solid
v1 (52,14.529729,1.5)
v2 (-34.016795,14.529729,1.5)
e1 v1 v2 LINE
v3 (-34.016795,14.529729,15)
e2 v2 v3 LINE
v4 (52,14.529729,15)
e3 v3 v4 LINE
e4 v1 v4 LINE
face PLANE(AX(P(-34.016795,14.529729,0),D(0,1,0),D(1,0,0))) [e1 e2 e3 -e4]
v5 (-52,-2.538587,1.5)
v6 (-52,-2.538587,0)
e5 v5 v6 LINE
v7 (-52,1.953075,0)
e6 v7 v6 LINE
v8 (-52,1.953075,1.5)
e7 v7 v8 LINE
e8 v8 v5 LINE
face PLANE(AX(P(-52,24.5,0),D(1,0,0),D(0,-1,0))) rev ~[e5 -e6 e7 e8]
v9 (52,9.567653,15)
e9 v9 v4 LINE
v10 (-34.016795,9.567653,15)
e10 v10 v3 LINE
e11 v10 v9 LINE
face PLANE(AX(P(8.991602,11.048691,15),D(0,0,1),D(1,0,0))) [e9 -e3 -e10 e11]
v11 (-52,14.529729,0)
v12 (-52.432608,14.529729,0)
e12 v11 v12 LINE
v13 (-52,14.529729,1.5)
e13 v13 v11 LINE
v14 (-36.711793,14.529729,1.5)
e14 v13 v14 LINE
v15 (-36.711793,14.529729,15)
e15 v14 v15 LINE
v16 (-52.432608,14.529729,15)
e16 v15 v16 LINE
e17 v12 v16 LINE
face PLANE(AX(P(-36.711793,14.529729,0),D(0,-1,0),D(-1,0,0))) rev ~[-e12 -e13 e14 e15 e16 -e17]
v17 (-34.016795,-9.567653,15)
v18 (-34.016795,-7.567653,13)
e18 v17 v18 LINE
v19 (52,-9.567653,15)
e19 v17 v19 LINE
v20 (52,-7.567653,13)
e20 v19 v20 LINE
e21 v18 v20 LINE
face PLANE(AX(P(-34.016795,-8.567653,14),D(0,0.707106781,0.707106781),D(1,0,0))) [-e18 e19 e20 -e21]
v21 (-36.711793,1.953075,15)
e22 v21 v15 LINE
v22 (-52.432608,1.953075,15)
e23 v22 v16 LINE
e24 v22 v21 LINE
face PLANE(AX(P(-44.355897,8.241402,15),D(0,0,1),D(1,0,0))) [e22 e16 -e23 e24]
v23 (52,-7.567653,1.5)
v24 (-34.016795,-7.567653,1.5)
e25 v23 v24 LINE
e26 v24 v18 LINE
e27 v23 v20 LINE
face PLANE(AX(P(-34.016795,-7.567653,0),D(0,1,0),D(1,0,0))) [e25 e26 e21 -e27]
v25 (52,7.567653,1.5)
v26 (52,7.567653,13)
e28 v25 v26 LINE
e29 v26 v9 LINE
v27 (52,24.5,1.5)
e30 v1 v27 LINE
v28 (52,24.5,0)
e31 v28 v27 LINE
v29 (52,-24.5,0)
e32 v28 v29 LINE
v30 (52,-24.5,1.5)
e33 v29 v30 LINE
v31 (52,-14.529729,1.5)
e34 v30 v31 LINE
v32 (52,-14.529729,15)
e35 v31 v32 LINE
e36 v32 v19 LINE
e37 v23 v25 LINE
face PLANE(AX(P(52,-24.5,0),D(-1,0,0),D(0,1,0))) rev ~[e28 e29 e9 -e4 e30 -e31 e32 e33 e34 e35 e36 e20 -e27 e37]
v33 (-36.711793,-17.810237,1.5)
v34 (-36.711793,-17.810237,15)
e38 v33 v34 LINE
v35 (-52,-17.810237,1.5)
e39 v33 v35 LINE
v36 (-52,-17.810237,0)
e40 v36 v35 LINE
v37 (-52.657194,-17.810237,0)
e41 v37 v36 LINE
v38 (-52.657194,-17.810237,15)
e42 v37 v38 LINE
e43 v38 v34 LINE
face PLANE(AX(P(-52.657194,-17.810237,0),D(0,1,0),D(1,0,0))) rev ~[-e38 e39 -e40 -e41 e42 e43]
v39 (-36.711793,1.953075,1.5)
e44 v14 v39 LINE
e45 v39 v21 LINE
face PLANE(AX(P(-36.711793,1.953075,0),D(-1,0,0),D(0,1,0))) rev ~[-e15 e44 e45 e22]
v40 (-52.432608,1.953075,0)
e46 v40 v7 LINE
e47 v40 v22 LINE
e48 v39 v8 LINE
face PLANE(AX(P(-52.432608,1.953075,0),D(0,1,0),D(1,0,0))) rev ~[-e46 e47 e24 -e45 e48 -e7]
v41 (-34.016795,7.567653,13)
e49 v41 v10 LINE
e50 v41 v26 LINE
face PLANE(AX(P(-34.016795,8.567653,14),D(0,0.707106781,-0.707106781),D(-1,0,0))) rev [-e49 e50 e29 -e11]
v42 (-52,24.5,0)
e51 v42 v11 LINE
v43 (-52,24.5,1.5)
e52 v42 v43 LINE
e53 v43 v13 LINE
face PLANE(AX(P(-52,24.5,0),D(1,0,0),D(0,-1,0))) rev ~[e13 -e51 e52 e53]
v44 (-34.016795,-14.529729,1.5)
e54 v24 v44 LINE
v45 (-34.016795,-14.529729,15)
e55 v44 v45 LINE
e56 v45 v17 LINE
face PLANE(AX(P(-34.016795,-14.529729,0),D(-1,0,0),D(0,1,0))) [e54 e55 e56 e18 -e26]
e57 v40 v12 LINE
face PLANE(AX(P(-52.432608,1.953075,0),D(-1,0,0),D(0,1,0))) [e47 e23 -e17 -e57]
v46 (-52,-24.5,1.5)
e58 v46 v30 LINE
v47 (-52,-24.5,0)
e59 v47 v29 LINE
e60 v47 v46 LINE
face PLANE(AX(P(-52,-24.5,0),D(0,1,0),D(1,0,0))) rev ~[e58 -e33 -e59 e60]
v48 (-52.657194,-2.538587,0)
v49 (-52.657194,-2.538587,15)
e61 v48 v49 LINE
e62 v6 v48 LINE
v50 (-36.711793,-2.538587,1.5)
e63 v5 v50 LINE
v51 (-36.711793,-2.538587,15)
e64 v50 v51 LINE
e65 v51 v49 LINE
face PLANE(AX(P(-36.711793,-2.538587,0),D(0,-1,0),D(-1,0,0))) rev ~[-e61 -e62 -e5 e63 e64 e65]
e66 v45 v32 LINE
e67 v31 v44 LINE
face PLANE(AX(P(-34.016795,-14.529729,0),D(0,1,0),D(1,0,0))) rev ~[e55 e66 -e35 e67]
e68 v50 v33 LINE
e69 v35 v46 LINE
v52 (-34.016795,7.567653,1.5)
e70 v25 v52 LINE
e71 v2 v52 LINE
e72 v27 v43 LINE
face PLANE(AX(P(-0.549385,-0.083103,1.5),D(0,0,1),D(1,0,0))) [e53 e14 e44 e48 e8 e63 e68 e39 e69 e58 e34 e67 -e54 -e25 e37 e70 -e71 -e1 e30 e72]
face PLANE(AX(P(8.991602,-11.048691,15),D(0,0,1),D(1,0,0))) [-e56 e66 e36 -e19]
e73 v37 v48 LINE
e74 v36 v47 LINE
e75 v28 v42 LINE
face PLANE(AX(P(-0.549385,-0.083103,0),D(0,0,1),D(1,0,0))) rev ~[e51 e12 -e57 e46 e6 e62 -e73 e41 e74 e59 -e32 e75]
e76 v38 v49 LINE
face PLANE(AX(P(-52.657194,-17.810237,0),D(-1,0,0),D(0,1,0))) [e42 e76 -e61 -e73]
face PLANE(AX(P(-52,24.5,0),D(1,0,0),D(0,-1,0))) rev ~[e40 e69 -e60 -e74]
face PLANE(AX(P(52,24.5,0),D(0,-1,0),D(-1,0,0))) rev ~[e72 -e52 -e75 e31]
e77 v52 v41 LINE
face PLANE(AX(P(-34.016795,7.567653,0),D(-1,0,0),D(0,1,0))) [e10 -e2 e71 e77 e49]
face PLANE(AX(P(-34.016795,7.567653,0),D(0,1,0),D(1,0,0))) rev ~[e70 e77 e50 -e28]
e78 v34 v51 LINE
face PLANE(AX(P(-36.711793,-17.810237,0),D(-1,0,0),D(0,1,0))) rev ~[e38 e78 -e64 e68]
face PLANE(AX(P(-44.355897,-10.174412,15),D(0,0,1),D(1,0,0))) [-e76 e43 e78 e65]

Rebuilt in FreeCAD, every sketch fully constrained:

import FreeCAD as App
import Part
import Sketcher
Q = App.Units.Quantity


def edges_at(feature, points):
    """Names of the edges that pass closest to the given points."""
    edges = feature.Shape.Edges
    near = lambda p: min(range(len(edges)), key=lambda i: edges[i].distToShape(Part.Vertex(*p))[0])
    return sorted({f"Edge{near(p) + 1}" for p in points})


def add_polygon(sketch, points):
    """Adds a closed chain of lines whose ends are joined by coincident constraints."""
    first, n = sketch.GeometryCount, len(points)
    for a, b in zip(points, points[1:] + points[:1]):
        sketch.addGeometry(Part.LineSegment(App.Vector(*a, 0), App.Vector(*b, 0)), False)
    for i in range(n):
        sketch.addConstraint(Sketcher.Constraint("Coincident", first + i, 2, first + (i + 1) % n, 1))

doc = App.newDocument("Part")
body = doc.addObject("PartDesign::Body", "Body")

sketch1 = doc.addObject("Sketcher::SketchObject", "Sketch")
body.addObject(sketch1)
sketch1.AttachmentSupport = (doc.XY_Plane, [""])
sketch1.MapMode = "FlatFace"
add_polygon(sketch1, [(52, 24.5), (-52, 24.5), (-52, 14.529729), (-52, 1.953075), (-52, -2.538587), (-52, -17.810237), (-52, -24.5), (52, -24.5)])
sketch1.addConstraint([
    Sketcher.Constraint("Horizontal", 0),
    Sketcher.Constraint("Vertical", 1),
    Sketcher.Constraint("Vertical", 2),
    Sketcher.Constraint("Vertical", 3),
    Sketcher.Constraint("Vertical", 4),
    Sketcher.Constraint("Vertical", 5),
    Sketcher.Constraint("Horizontal", 6),
    Sketcher.Constraint("Vertical", 7),
    Sketcher.Constraint("Symmetric", 0, 2, 6, 2, -1, 1),
    Sketcher.Constraint("DistanceX", 0, 2, 0, 1, Q("104 mm")),
    Sketcher.Constraint("DistanceY", 7, 1, 7, 2, Q("49 mm")),
    Sketcher.Constraint("DistanceY", 1, 2, 1, 1, Q("9.970271 mm")),
    Sketcher.Constraint("DistanceY", 3, 2, 3, 1, Q("4.491662 mm")),
    Sketcher.Constraint("DistanceY", 4, 2, 4, 1, Q("15.27165 mm")),
    Sketcher.Constraint("DistanceY", 2, 2, 2, 1, Q("12.576655 mm")),
])
pad1 = doc.addObject("PartDesign::Pad", "Pad")
body.addObject(pad1)
pad1.Profile = sketch1
pad1.Length = 1.5

sketch2 = doc.addObject("Sketcher::SketchObject", "Sketch001")
body.addObject(sketch2)
sketch2.AttachmentSupport = (doc.XY_Plane, [""])
sketch2.MapMode = "FlatFace"
add_polygon(sketch2, [(-36.711793, 1.953075), (-36.711793, 14.529729), (-52.432608, 14.529729), (-52.432608, 1.953075)])
add_polygon(sketch2, [(-36.711793, -17.810237), (-36.711793, -2.538587), (-52.657194, -2.538587), (-52.657194, -17.810237)])
add_polygon(sketch2, [(-34.016795, 14.529729), (-34.016795, 7.567653), (52, 7.567653), (52, 14.529729)])
add_polygon(sketch2, [(-34.016795, -7.567653), (-34.016795, -14.529729), (52, -14.529729), (52, -7.567653)])
sketch2.addConstraint([
    Sketcher.Constraint("Vertical", 0),
    Sketcher.Constraint("Horizontal", 1),
    Sketcher.Constraint("Vertical", 2),
    Sketcher.Constraint("Horizontal", 3),
    Sketcher.Constraint("Vertical", 4),
    Sketcher.Constraint("Horizontal", 5),
    Sketcher.Constraint("Vertical", 6),
    Sketcher.Constraint("Horizontal", 7),
    Sketcher.Constraint("Vertical", 8),
    Sketcher.Constraint("Horizontal", 9),
    Sketcher.Constraint("Vertical", 10),
    Sketcher.Constraint("Horizontal", 11),
    Sketcher.Constraint("Vertical", 12),
    Sketcher.Constraint("Horizontal", 13),
    Sketcher.Constraint("Vertical", 14),
    Sketcher.Constraint("Horizontal", 15),
    Sketcher.Constraint("Symmetric", 11, 2, 12, 2, -1),
    Sketcher.Constraint("Symmetric", 9, 2, 14, 2, -1),
    Sketcher.Constraint("Horizontal", 1, 2, 10, 2),
    Sketcher.Constraint("Vertical", 3, 2, 4, 2),
    Sketcher.Constraint("DistanceX", -1, 1, 9, 2, Q("52 mm")),
    Sketcher.Constraint("DistanceX", 5, 2, 5, 1, Q("15.945401 mm")),
    Sketcher.Constraint("DistanceY", 4, 1, 4, 2, Q("15.27165 mm")),
    Sketcher.Constraint("DistanceX", 6, 2, 12, 2, Q("18.640399 mm")),
    Sketcher.Constraint("DistanceX", 1, 2, 1, 1, Q("15.720814 mm")),
    Sketcher.Constraint("DistanceX", 9, 1, 9, 2, Q("86.016795 mm")),
    Sketcher.Constraint("DistanceY", 0, 1, 0, 2, Q("12.576655 mm")),
    Sketcher.Constraint("DistanceY", 8, 2, 8, 1, Q("6.962076 mm")),
    Sketcher.Constraint("DistanceY", -1, 1, 0, 2, Q("14.529729 mm")),
    Sketcher.Constraint("DistanceY", 4, 2, 3, 2, Q("4.491662 mm")),
])
pad2 = doc.addObject("PartDesign::Pad", "Pad001")
body.addObject(pad2)
pad2.Profile = sketch2
pad2.Length = 15
doc.recompute()

chamfer = doc.addObject("PartDesign::Chamfer", "Chamfer")
body.addObject(chamfer)
chamfer.Base = (pad2, edges_at(pad2, [(8.992, -7.568, 15), (8.992, 7.568, 15)]))
chamfer.Size = 2

doc.recompute()
